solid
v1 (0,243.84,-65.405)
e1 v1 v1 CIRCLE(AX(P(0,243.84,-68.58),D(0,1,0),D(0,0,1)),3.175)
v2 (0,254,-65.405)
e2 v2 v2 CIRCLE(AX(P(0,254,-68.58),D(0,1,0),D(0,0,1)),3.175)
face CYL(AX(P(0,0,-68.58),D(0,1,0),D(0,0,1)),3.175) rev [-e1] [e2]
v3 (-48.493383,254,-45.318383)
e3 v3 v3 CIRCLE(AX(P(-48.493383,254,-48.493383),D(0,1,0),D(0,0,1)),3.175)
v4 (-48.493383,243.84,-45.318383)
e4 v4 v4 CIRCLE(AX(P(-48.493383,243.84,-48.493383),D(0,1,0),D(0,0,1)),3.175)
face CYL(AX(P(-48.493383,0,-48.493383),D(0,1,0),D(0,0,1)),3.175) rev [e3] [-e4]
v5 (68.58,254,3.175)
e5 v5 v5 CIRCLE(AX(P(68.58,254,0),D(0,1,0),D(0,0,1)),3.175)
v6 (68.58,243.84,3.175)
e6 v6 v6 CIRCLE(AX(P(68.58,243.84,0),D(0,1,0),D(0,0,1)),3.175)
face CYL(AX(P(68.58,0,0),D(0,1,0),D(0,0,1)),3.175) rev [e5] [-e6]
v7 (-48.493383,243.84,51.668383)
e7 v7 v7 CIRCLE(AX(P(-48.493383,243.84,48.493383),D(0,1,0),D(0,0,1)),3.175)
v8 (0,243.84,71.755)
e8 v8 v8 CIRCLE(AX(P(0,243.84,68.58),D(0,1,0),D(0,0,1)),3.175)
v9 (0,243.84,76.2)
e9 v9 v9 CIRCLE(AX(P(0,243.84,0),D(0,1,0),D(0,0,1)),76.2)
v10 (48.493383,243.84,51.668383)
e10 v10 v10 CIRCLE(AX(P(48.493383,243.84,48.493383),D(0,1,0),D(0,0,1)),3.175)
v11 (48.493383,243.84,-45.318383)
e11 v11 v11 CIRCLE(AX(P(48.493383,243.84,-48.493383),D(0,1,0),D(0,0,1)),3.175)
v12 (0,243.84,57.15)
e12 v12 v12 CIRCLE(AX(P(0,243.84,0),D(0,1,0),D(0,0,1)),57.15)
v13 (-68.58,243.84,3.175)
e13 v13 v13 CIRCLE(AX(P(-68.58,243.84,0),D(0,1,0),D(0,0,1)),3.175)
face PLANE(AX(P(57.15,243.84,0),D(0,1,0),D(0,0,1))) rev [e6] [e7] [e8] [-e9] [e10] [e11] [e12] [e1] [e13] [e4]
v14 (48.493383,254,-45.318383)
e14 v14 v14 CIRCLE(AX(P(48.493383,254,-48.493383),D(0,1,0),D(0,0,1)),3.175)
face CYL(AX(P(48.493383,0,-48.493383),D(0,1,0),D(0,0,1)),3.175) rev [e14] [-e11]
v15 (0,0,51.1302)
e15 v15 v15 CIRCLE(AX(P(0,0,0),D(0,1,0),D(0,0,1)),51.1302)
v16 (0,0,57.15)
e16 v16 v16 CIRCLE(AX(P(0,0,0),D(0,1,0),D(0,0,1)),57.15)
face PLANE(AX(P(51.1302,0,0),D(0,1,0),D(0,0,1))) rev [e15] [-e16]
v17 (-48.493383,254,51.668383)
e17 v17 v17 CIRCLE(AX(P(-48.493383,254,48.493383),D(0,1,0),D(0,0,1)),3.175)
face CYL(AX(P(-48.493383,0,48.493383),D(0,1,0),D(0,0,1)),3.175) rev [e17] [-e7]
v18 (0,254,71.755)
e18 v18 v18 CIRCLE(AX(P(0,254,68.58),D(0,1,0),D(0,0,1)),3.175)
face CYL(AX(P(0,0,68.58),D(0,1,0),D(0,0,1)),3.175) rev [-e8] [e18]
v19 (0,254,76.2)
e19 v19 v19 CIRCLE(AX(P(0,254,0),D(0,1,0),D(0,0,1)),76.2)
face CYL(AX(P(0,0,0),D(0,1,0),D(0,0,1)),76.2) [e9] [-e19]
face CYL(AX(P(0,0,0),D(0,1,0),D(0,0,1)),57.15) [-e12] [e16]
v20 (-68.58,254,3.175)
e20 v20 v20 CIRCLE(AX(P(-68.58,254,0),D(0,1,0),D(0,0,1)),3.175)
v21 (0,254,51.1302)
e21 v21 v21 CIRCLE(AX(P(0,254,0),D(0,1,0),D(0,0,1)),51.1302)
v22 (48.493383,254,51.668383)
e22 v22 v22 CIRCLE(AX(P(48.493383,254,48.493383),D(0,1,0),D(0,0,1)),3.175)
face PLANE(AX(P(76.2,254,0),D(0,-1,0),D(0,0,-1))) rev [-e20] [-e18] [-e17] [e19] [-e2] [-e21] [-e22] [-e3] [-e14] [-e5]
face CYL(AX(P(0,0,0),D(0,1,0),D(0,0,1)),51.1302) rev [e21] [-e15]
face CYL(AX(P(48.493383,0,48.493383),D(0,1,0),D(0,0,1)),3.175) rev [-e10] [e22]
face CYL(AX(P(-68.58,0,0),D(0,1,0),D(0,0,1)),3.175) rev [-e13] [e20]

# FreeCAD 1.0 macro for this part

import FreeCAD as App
import Part
import Sketcher
Q = App.Units.Quantity


def add_polygon(sketch, points):
    """Adds a closed chain of lines whose ends are joined by coincident constraints."""
    first, n = sketch.GeometryCount, len(points)
    for a, b in zip(points, points[1:] + points[:1]):
        sketch.addGeometry(Part.LineSegment(App.Vector(*a, 0), App.Vector(*b, 0)), False)
    for i in range(n):
        sketch.addConstraint(Sketcher.Constraint("Coincident", first + i, 2, first + (i + 1) % n, 1))

doc = App.newDocument("Part")
body = doc.addObject("PartDesign::Body", "Body")

# Sketch on XY plane
sketch1 = doc.addObject("Sketcher::SketchObject", "Sketch")
body.addObject(sketch1)
sketch1.AttachmentSupport = (doc.XY_Plane, [""])
sketch1.MapMode = "FlatFace"
add_polygon(sketch1, [(51, 254), (51, 0), (57, 0), (57, 244), (76, 244), (76, 254)])  # lines 0-5
sketch1.addConstraint([
    Sketcher.Constraint("Vertical", 0),
    Sketcher.Constraint("Horizontal", 1),
    Sketcher.Constraint("Vertical", 2),
    Sketcher.Constraint("Horizontal", 3),
    Sketcher.Constraint("Vertical", 4),
    Sketcher.Constraint("Horizontal", 5),
    Sketcher.Constraint("PointOnObject", 0, 2, -1),
    Sketcher.Constraint("DistanceY", 0, 2, 0, 1, Q("10 in")),
    Sketcher.Constraint("DistanceY", 2, 1, 2, 2, Q("9.6 in")),
    Sketcher.Constraint("DistanceX", -1, 1, 3, 2, Q("3 in")),
    Sketcher.Constraint("DistanceX", 3, 1, 3, 2, Q("0.75 in")),
    Sketcher.Constraint("DistanceX", 1, 1, 1, 2, Q("0.237 in")),
])
revolution = doc.addObject("PartDesign::Revolution", "Revolution")
body.addObject(revolution)
revolution.Profile = sketch1
revolution.ReferenceAxis = (sketch1, ["V_Axis"])
revolution.Angle = 360

# Sketch on XZ plane
sketch2 = doc.addObject("Sketcher::SketchObject", "Sketch001")
body.addObject(sketch2)
sketch2.AttachmentSupport = (doc.XZ_Plane, [""])
sketch2.MapMode = "FlatFace"
sketch2.AttachmentOffset = App.Placement(App.Vector(0, 0, -10 * 25.4), App.Rotation())
sketch2.addGeometry([
    Part.Circle(App.Vector(0, -68.6, 0), App.Vector(0, 0, 1), 3.2),  # 0
    Part.Circle(App.Vector(48.5, -48.5, 0), App.Vector(0, 0, 1), 3.2),  # 1
    Part.Circle(App.Vector(68.6, 0, 0), App.Vector(0, 0, 1), 3.2),  # 2
    Part.Circle(App.Vector(48.5, 48.5, 0), App.Vector(0, 0, 1), 3.2),  # 3
    Part.Circle(App.Vector(0, 68.6, 0), App.Vector(0, 0, 1), 3.2),  # 4
    Part.Circle(App.Vector(-48.5, 48.5, 0), App.Vector(0, 0, 1), 3.2),  # 5
    Part.Circle(App.Vector(-68.6, 0, 0), App.Vector(0, 0, 1), 3.2),  # 6
    Part.Circle(App.Vector(-48.5, -48.5, 0), App.Vector(0, 0, 1), 3.2),  # 7
], False)
sketch2.addConstraint([
    Sketcher.Constraint("Equal", 0, 1),
    Sketcher.Constraint("Equal", 1, 2),
    Sketcher.Constraint("Equal", 2, 3),
    Sketcher.Constraint("Equal", 3, 4),
    Sketcher.Constraint("Equal", 4, 5),
    Sketcher.Constraint("Equal", 5, 6),
    Sketcher.Constraint("Equal", 6, 7),
    Sketcher.Constraint("Symmetric", 0, 3, 4, 3, -1, 1),
    Sketcher.Constraint("Symmetric", 1, 3, 5, 3, -1, 1),
    Sketcher.Constraint("Symmetric", 2, 3, 6, 3, -1, 1),
    Sketcher.Constraint("Symmetric", 3, 3, 7, 3, -1, 1),
    Sketcher.Constraint("Symmetric", 3, 3, 5, 3, -2),
    Sketcher.Constraint("PointOnObject", 0, 3, -2),
    Sketcher.Constraint("PointOnObject", 2, 3, -1),
    Sketcher.Constraint("Diameter", 0, Q("0.25 in")),
    Sketcher.Constraint("DistanceY", 0, 3, -1, 1, Q("2.7 in")),
    Sketcher.Constraint("DistanceX", -1, 1, 2, 3, Q("2.7 in")),
    Sketcher.Constraint("DistanceX", -1, 1, 1, 3, 48.493383),
    Sketcher.Constraint("DistanceY", 1, 3, -1, 1, 48.493383),
])
pocket1 = doc.addObject("PartDesign::Pocket", "Pocket")
body.addObject(pocket1)
pocket1.Profile = sketch2
pocket1.Type = "ThroughAll"
pocket1.Reversed = True

doc.recompute()
